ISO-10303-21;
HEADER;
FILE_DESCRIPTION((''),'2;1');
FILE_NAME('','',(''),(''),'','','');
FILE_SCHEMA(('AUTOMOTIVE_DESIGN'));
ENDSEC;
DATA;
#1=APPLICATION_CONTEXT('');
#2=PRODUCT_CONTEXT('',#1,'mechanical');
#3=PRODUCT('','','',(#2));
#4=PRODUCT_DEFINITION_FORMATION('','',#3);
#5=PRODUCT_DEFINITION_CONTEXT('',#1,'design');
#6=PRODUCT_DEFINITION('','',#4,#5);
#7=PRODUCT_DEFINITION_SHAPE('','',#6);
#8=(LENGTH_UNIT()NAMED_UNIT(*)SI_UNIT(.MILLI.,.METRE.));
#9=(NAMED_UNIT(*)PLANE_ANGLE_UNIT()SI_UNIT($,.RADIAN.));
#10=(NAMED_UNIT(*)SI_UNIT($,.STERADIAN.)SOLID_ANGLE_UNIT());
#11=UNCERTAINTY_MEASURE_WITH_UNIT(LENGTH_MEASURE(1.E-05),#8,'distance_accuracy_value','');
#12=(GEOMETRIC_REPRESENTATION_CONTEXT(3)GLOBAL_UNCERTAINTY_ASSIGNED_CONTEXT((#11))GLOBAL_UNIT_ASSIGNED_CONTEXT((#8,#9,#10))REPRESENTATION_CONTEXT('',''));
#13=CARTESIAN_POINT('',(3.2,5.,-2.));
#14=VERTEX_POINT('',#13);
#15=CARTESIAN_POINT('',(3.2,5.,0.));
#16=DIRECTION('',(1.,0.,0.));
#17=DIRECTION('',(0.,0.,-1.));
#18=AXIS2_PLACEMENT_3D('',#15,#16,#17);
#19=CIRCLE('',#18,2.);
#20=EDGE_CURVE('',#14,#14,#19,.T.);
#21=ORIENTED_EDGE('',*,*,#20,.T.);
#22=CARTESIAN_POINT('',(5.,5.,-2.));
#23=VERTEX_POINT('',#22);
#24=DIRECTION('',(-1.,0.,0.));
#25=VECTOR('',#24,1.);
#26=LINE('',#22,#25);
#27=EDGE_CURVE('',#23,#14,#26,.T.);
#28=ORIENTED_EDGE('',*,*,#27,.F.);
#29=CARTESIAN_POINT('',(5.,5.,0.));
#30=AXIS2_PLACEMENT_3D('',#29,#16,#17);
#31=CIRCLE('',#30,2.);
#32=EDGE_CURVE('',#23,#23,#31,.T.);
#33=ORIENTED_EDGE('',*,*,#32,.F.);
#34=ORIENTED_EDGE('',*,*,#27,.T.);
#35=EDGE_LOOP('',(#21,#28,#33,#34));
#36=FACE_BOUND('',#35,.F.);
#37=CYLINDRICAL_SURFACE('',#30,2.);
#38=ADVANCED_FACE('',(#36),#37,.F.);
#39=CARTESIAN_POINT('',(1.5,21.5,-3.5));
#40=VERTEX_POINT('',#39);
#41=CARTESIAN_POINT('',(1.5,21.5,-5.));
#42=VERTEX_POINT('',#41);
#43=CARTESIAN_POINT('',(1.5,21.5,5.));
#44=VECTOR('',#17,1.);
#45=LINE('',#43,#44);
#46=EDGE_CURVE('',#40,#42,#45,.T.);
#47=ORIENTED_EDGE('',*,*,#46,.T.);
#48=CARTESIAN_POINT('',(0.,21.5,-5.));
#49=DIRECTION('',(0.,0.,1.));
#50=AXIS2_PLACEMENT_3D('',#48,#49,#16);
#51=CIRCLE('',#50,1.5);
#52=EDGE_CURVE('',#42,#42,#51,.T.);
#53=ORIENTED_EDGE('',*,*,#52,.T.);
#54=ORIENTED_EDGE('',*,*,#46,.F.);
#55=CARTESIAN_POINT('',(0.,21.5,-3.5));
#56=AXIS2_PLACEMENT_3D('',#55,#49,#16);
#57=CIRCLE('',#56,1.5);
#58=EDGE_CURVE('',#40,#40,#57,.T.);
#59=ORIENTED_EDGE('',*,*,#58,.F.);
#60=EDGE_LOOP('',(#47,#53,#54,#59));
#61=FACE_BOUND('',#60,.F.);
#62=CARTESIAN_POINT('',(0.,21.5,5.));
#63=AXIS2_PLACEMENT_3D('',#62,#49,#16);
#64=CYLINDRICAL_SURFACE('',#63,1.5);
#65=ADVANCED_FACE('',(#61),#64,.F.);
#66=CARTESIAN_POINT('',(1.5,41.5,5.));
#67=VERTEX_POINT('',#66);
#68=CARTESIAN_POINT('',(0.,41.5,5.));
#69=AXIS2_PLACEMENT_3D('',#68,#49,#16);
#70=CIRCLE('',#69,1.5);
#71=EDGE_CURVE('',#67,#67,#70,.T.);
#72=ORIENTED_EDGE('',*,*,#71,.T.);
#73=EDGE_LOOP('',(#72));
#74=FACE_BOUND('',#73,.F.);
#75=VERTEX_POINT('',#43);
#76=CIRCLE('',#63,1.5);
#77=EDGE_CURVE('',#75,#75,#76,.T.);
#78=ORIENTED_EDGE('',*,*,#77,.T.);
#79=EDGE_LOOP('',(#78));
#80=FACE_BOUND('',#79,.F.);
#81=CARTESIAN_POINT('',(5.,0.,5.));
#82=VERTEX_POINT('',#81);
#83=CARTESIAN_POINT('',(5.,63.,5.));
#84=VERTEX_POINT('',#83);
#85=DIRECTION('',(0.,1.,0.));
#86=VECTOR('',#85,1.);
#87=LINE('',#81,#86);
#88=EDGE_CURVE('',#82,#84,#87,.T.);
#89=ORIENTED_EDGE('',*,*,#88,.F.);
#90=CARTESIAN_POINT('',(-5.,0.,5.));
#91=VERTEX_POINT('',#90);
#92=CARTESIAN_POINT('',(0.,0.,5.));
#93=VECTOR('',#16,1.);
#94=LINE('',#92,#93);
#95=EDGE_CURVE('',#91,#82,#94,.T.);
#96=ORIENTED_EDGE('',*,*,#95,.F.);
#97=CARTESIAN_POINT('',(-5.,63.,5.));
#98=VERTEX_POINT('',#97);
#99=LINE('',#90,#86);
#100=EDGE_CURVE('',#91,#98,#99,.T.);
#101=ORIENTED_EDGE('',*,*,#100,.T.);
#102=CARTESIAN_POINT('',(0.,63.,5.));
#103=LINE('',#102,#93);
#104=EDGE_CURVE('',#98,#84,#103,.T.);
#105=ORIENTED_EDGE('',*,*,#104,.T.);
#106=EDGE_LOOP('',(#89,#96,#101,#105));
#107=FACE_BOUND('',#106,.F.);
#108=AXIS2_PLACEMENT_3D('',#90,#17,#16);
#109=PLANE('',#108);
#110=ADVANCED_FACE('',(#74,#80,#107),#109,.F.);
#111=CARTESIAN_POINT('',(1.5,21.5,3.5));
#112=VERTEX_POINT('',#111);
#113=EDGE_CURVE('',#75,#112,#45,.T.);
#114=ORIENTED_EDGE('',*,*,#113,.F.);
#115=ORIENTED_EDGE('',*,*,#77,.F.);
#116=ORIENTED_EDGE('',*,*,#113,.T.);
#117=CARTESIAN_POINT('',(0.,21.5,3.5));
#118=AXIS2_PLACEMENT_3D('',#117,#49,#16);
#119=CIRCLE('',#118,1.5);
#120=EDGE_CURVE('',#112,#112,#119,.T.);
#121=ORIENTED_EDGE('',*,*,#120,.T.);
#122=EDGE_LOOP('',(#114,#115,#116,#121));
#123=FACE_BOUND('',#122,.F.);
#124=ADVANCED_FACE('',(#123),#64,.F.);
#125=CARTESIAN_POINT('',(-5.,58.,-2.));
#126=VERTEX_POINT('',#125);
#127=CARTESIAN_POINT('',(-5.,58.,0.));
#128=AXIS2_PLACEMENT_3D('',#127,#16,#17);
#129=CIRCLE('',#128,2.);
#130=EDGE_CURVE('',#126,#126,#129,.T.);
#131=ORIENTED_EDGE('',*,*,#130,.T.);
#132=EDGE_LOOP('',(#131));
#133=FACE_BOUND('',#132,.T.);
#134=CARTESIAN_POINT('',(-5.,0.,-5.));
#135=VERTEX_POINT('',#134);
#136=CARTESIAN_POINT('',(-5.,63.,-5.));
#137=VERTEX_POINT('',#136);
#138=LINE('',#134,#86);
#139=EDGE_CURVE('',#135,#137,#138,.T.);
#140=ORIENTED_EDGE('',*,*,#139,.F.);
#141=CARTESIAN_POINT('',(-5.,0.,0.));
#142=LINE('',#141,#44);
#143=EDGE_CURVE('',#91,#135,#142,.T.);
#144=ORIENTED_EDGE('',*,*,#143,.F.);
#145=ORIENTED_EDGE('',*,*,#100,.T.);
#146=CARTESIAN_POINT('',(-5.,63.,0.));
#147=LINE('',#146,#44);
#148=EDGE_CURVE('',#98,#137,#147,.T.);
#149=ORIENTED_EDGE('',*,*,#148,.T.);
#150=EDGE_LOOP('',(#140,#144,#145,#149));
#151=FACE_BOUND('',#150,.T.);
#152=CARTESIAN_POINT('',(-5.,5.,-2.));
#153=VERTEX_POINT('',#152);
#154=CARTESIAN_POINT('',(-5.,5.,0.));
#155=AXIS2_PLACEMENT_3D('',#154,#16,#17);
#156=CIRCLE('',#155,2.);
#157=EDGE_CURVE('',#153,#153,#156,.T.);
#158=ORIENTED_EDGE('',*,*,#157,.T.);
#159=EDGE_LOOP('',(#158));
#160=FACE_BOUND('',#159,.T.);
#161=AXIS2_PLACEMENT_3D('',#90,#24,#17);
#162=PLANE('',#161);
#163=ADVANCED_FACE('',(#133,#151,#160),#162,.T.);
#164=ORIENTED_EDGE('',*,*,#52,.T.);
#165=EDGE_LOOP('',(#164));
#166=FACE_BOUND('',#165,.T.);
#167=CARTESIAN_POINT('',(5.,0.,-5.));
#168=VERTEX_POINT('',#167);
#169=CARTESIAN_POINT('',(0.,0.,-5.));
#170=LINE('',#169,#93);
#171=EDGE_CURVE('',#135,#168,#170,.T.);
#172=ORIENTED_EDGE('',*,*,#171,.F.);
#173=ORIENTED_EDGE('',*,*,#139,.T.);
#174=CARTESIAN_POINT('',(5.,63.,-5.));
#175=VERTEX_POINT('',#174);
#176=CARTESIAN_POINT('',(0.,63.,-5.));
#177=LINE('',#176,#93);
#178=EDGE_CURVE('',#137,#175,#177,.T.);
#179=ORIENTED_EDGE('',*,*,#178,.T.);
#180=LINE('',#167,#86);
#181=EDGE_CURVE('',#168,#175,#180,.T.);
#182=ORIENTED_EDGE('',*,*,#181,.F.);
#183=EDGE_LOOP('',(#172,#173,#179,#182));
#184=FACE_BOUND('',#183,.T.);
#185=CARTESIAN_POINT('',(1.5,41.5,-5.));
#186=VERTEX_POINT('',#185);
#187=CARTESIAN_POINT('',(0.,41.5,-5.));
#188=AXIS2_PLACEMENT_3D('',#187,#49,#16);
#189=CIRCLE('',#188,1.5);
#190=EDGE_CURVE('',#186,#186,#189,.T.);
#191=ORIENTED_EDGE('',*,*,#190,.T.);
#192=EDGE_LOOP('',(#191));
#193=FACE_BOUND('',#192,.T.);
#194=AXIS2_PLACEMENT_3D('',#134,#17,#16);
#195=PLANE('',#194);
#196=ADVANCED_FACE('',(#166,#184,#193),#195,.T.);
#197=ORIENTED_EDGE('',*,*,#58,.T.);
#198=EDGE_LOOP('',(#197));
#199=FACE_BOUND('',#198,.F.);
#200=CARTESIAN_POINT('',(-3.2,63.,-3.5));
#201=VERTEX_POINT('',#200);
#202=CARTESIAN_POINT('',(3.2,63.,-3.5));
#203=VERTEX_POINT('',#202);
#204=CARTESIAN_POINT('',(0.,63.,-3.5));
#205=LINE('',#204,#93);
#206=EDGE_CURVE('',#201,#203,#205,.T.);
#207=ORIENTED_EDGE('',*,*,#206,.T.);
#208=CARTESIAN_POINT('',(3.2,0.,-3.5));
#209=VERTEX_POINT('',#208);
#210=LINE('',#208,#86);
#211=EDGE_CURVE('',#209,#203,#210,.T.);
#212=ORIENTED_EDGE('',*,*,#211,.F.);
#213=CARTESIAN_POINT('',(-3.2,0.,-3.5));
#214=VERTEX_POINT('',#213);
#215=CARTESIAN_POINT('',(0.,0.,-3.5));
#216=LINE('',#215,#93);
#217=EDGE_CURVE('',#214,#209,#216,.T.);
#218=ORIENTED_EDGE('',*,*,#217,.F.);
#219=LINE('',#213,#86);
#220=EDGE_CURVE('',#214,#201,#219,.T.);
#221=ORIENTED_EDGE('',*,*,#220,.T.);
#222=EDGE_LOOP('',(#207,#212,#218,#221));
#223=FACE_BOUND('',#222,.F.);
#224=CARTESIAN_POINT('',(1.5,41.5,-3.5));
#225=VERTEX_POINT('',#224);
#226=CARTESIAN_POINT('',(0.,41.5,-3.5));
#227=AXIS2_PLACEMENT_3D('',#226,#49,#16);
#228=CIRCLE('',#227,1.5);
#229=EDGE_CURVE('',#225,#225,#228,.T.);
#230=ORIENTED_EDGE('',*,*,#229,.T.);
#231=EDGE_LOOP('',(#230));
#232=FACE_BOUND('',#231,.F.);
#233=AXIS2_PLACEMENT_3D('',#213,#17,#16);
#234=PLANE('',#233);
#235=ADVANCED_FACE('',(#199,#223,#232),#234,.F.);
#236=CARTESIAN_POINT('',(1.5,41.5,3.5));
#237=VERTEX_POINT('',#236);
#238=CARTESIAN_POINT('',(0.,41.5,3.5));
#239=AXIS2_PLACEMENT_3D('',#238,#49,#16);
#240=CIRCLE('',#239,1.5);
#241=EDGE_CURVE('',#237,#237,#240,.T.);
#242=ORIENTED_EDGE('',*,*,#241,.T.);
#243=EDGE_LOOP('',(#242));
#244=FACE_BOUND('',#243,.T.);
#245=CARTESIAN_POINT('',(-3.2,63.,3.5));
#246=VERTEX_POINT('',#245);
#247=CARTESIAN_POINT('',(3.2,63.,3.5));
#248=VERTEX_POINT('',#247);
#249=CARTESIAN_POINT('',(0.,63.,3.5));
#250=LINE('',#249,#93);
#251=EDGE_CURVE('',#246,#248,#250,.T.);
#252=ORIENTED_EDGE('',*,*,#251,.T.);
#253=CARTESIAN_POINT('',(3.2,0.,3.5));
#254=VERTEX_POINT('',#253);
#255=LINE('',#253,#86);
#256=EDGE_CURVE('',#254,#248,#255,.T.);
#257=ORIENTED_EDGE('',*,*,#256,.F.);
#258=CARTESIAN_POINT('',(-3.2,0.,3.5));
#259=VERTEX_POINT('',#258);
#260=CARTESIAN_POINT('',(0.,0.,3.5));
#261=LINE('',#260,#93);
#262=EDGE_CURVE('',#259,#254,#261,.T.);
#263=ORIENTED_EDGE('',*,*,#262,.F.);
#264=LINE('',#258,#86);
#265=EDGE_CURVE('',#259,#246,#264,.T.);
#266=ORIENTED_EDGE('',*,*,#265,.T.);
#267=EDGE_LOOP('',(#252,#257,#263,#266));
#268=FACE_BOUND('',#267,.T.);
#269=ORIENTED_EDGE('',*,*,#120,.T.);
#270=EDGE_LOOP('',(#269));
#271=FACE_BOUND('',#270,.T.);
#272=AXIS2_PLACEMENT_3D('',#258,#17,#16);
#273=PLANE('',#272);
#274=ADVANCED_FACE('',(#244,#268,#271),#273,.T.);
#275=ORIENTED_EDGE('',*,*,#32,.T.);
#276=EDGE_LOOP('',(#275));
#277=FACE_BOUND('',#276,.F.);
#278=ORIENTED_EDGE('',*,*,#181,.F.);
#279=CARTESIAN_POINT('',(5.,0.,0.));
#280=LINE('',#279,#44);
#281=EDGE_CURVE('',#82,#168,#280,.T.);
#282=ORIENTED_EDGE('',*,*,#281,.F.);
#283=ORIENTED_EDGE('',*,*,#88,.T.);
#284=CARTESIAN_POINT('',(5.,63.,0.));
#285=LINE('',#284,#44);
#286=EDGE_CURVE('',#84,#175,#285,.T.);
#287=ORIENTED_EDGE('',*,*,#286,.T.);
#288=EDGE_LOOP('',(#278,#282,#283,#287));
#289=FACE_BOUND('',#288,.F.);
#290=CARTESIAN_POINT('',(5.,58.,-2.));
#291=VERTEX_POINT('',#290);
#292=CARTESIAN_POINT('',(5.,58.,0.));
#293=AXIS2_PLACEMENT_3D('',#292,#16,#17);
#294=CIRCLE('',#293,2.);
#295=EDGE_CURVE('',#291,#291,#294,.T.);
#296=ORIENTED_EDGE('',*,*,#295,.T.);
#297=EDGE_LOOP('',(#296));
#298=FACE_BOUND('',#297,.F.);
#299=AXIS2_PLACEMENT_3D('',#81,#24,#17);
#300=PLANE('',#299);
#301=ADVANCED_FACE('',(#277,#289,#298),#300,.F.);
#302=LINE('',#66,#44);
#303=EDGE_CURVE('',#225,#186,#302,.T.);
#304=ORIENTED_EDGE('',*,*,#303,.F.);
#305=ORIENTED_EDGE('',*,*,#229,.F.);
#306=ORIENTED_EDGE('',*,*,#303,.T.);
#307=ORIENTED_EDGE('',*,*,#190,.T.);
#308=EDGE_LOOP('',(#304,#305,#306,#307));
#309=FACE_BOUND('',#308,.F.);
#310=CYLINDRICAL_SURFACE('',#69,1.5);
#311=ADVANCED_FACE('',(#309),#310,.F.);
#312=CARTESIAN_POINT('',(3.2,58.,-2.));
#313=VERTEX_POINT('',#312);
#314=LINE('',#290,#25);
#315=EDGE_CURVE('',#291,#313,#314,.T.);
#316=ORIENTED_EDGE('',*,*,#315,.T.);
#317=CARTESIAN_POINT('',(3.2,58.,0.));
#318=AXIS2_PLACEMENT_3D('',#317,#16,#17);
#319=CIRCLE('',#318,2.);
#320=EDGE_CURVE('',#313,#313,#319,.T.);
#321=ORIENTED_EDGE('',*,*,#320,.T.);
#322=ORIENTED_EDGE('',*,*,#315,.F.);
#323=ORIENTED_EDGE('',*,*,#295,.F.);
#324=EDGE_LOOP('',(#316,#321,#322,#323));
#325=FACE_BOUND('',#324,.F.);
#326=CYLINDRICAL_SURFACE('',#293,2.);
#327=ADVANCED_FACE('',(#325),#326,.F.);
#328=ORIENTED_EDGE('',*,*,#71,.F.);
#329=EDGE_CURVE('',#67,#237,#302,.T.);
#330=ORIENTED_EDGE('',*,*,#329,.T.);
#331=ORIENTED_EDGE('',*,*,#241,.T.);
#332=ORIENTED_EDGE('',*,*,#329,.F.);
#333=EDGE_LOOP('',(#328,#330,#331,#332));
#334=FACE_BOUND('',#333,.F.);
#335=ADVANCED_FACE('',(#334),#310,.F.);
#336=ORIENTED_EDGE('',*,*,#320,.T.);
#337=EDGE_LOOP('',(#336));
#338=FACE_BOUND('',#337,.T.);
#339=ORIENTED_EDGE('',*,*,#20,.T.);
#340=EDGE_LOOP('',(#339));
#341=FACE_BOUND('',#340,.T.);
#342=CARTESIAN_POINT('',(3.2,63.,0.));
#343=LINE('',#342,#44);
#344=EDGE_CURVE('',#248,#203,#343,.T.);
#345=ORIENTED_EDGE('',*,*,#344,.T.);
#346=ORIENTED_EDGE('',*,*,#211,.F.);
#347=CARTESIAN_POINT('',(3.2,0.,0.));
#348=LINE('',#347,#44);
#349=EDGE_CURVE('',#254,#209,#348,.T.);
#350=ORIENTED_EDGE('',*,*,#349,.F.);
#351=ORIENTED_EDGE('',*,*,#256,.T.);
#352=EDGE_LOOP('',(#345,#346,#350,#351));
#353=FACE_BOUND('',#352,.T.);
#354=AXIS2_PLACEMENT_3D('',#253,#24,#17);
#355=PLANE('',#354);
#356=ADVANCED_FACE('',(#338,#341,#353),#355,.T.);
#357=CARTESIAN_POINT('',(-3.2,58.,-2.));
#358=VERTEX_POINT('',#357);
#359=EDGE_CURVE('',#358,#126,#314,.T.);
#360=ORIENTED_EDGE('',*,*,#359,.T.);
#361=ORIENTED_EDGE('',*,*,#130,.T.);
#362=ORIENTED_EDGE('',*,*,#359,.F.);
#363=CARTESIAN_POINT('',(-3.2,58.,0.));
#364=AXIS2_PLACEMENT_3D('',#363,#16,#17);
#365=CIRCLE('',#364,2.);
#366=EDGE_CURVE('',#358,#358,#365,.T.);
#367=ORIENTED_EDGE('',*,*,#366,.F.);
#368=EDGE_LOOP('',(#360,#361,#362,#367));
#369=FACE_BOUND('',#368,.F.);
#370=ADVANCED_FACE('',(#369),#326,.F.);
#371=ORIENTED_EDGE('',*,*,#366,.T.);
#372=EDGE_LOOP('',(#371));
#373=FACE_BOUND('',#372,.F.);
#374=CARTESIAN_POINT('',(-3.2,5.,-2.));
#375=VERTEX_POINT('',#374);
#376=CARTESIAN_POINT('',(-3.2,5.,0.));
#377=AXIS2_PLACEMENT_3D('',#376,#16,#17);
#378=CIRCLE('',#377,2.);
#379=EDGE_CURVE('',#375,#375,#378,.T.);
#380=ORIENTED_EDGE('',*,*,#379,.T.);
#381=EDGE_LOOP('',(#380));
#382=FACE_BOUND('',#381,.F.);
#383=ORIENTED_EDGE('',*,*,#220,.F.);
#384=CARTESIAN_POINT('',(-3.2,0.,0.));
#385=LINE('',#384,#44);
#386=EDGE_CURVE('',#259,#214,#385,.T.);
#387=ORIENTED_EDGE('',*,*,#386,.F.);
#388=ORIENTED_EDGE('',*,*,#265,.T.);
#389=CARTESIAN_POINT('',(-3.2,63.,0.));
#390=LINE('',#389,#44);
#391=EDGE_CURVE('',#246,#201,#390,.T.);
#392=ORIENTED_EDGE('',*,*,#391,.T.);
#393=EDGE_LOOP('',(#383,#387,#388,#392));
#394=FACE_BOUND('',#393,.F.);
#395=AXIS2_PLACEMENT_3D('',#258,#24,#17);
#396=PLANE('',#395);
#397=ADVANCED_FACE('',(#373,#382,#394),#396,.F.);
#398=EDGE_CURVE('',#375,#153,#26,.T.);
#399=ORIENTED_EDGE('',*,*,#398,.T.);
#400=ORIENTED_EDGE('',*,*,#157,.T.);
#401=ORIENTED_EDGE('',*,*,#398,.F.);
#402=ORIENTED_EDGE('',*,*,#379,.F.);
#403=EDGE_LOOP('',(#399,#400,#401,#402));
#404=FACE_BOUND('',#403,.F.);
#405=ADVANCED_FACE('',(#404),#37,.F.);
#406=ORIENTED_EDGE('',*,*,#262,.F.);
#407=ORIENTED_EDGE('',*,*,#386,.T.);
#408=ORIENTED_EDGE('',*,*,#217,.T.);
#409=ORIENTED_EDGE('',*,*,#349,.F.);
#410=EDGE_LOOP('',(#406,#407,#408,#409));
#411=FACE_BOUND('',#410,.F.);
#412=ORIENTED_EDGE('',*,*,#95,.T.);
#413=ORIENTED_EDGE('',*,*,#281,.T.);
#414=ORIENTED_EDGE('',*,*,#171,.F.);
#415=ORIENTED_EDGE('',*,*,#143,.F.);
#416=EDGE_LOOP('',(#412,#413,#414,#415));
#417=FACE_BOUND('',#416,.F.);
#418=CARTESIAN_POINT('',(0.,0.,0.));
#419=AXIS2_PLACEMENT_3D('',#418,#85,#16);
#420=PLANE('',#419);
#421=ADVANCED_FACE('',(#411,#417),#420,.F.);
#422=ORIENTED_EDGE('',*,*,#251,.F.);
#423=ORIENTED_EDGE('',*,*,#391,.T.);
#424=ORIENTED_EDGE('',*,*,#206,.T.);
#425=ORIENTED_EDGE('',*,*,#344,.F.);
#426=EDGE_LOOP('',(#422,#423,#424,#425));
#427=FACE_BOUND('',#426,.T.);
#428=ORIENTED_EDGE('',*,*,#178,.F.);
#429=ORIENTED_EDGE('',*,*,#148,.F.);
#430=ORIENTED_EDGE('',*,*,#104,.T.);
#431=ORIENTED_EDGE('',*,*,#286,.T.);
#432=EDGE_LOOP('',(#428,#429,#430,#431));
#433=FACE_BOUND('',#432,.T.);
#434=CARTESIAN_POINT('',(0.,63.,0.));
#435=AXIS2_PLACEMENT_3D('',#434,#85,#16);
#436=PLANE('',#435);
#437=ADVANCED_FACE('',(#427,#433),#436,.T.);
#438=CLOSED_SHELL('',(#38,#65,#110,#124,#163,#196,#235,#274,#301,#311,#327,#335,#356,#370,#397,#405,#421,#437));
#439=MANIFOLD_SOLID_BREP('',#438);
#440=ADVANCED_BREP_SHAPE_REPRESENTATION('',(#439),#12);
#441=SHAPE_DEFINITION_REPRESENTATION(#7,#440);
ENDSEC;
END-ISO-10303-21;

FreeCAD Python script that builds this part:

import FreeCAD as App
import Part
import Sketcher

V = App.Vector


def add_polygon(sketch, points):
    """Adds a closed chain of lines whose ends are joined by coincident constraints."""
    first, n = sketch.GeometryCount, len(points)
    for a, b in zip(points, points[1:] + points[:1]):
        sketch.addGeometry(Part.LineSegment(App.Vector(*a, 0), App.Vector(*b, 0)), False)
    for i in range(n):
        sketch.addConstraint(Sketcher.Constraint("Coincident", first + i, 2, first + (i + 1) % n, 1))

doc = App.newDocument("Part")
body = doc.addObject("PartDesign::Body", "Body")

# Sketch on XZ plane
sketch1 = doc.addObject("Sketcher::SketchObject", "Sketch")
body.addObject(sketch1)
sketch1.AttachmentSupport = (doc.XZ_Plane, [""])
sketch1.MapMode = "FlatFace"
add_polygon(sketch1, [(-5, -5), (-5, 5), (5, 5), (5, -5)])  # lines 0-3
add_polygon(sketch1, [(3.2, 3.5), (-3.2, 3.5), (-3.2, -3.5), (3.2, -3.5)])  # lines 4-7
sketch1.addConstraint([
    Sketcher.Constraint("Vertical", 0),
    Sketcher.Constraint("Horizontal", 1),
    Sketcher.Constraint("Vertical", 2),
    Sketcher.Constraint("Horizontal", 3),
    Sketcher.Constraint("Horizontal", 4),
    Sketcher.Constraint("Vertical", 5),
    Sketcher.Constraint("Horizontal", 6),
    Sketcher.Constraint("Vertical", 7),
    Sketcher.Constraint("Symmetric", 0, 2, 2, 2, -1, 1),
    Sketcher.Constraint("Symmetric", 4, 2, 6, 2, -1, 1),
    Sketcher.Constraint("Equal", 3, 0),
    Sketcher.Constraint("DistanceX", 1, 1, 1, 2, 10.0),
    Sketcher.Constraint("DistanceY", 5, 2, 5, 1, 7.0),
    Sketcher.Constraint("DistanceX", 4, 2, 4, 1, 6.4),
])
pad1 = doc.addObject("PartDesign::Pad", "Pad")
body.addObject(pad1)
pad1.Profile = sketch1
pad1.Length = 63
pad1.Reversed = True

# Sketch on XY plane
sketch2 = doc.addObject("Sketcher::SketchObject", "Sketch001")
body.addObject(sketch2)
sketch2.AttachmentSupport = (doc.XY_Plane, [""])
sketch2.MapMode = "FlatFace"
sketch2.AttachmentOffset = App.Placement(V(0, 0, 5), App.Rotation())
sketch2.addGeometry([
    Part.Circle(V(0, 41.5, 0), V(0, 0, 1), 1.5),
    Part.Circle(V(0, 21.5, 0), V(0, 0, 1), 1.5),
], False)
sketch2.addConstraint([
    Sketcher.Constraint("Equal", 0, 1),
    Sketcher.Constraint("PointOnObject", 0, 3, -2),
    Sketcher.Constraint("PointOnObject", 1, 3, -2),
    Sketcher.Constraint("Diameter", 0, 3.0),
    Sketcher.Constraint("DistanceY", 1, 3, 0, 3, 20.0),
    Sketcher.Constraint("DistanceY", -1, 1, 0, 3, 41.5),
])
pocket1 = doc.addObject("PartDesign::Pocket", "Pocket")
body.addObject(pocket1)
pocket1.Profile = sketch2
pocket1.Length = 30

# Sketch on YZ plane
sketch3 = doc.addObject("Sketcher::SketchObject", "Sketch002")
body.addObject(sketch3)
sketch3.AttachmentSupport = (doc.YZ_Plane, [""])
sketch3.MapMode = "FlatFace"
sketch3.AttachmentOffset = App.Placement(V(0, 0, 5), App.Rotation())
sketch3.addGeometry([
    Part.Circle(V(5, 0, 0), V(0, 0, 1), 2),
    Part.Circle(V(58, 0, 0), V(0, 0, 1), 2),
], False)
sketch3.addConstraint([
    Sketcher.Constraint("Equal", 0, 1),
    Sketcher.Constraint("PointOnObject", 0, 3, -1),
    Sketcher.Constraint("PointOnObject", 1, 3, -1),
    Sketcher.Constraint("Diameter", 0, 4.0),
    Sketcher.Constraint("DistanceX", -1, 1, 0, 3, 5.0),
    Sketcher.Constraint("DistanceX", -1, 1, 1, 3, 58.0),
])
pocket2 = doc.addObject("PartDesign::Pocket", "Pocket001")
body.addObject(pocket2)
pocket2.Profile = sketch3
pocket2.Length = 30

doc.recompute()
